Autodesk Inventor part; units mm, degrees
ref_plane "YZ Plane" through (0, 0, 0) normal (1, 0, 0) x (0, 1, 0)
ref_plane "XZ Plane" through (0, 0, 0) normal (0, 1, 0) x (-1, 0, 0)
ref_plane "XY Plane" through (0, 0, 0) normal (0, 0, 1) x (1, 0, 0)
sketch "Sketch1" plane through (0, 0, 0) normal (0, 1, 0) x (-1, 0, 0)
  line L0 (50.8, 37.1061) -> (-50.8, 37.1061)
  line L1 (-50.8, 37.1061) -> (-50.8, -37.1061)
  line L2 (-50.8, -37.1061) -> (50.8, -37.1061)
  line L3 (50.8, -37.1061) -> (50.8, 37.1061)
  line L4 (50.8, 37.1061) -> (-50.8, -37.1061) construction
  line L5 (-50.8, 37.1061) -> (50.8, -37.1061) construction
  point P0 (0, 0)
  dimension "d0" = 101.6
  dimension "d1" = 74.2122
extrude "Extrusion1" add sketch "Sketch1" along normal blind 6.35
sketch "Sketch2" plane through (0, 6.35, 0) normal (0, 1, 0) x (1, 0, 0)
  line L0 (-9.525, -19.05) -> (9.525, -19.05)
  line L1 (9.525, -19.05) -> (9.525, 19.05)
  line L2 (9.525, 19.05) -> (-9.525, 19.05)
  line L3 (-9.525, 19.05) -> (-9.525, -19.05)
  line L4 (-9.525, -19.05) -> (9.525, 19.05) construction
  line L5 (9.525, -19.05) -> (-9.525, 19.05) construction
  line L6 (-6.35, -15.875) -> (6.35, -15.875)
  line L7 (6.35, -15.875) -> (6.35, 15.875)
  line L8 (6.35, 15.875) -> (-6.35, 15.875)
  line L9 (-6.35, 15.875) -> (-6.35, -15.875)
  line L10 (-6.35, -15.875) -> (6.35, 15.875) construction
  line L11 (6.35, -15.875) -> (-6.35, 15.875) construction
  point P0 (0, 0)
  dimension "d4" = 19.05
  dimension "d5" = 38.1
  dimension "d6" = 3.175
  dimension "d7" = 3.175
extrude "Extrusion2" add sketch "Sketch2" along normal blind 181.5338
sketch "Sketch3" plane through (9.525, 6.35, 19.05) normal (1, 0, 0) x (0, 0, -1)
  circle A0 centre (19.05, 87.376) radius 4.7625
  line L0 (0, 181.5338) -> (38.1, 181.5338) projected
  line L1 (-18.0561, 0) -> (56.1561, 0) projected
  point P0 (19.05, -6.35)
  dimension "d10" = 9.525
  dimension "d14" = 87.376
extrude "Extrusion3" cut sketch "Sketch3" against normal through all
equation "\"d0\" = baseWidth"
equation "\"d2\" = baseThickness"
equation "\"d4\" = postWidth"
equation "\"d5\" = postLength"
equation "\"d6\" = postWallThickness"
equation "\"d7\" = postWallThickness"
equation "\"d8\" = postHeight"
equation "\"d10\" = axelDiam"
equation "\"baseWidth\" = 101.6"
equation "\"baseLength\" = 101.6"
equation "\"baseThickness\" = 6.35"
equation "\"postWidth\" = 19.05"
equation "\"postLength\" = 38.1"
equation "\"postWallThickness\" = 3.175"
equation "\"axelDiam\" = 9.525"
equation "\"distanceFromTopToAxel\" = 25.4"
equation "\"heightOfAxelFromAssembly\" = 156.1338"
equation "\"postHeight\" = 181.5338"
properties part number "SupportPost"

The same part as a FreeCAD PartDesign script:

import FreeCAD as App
import Part
import Sketcher

V = App.Vector
Q = App.Units.Quantity

doc = App.newDocument("Part")
body = doc.addObject("PartDesign::Body", "Body")

# Sketch on XZ plane
sketch1 = doc.addObject("Sketcher::SketchObject", "Sketch")
body.addObject(sketch1)
sketch1.AttachmentSupport = (doc.XZ_Plane, [""])
sketch1.MapMode = "FlatFace"
sketch1.addGeometry(Part.LineSegment(V(-51, -37, 0), V(-51, 37, 0)), False)
sketch1.addGeometry(Part.LineSegment(V(-51, 37, 0), V(51, 37, 0)), False)
sketch1.addGeometry(Part.LineSegment(V(51, 37, 0), V(51, -37, 0)), False)
sketch1.addGeometry(Part.LineSegment(V(51, -37, 0), V(-51, -37, 0)), False)
sketch1.addConstraint(Sketcher.Constraint("Coincident", 0, 2, 1, 1))
sketch1.addConstraint(Sketcher.Constraint("Coincident", 1, 2, 2, 1))
sketch1.addConstraint(Sketcher.Constraint("Coincident", 2, 2, 3, 1))
sketch1.addConstraint(Sketcher.Constraint("Coincident", 3, 2, 0, 1))
sketch1.addConstraint(Sketcher.Constraint("Vertical", 0))
sketch1.addConstraint(Sketcher.Constraint("Horizontal", 1))
sketch1.addConstraint(Sketcher.Constraint("Vertical", 2))
sketch1.addConstraint(Sketcher.Constraint("Horizontal", 3))
sketch1.addConstraint(Sketcher.Constraint("Symmetric", 0, 2, 2, 2, -1, 1))
sketch1.addConstraint(Sketcher.Constraint("DistanceX", 1, 1, 1, 2, Q("4 in")))
sketch1.addConstraint(Sketcher.Constraint("DistanceY", 0, 1, 0, 2, Q("74.2122 mm")))
pad1 = doc.addObject("PartDesign::Pad", "Pad")
body.addObject(pad1)
pad1.Profile = sketch1
pad1.Length = Q("0.25 in")
pad1.Reversed = True

# Sketch on XZ plane
sketch2 = doc.addObject("Sketcher::SketchObject", "Sketch001")
body.addObject(sketch2)
sketch2.AttachmentSupport = (doc.XZ_Plane, [""])
sketch2.MapMode = "FlatFace"
sketch2.AttachmentOffset = App.Placement(V(0, 0, -0.25 * 25.4), App.Rotation())
sketch2.addGeometry(Part.LineSegment(V(-10, -19, 0), V(-10, 19, 0)), False)
sketch2.addGeometry(Part.LineSegment(V(-10, 19, 0), V(10, 19, 0)), False)
sketch2.addGeometry(Part.LineSegment(V(10, 19, 0), V(10, -19, 0)), False)
sketch2.addGeometry(Part.LineSegment(V(10, -19, 0), V(-10, -19, 0)), False)
sketch2.addGeometry(Part.LineSegment(V(6, 16, 0), V(-6, 16, 0)), False)
sketch2.addGeometry(Part.LineSegment(V(-6, 16, 0), V(-6, -16, 0)), False)
sketch2.addGeometry(Part.LineSegment(V(-6, -16, 0), V(6, -16, 0)), False)
sketch2.addGeometry(Part.LineSegment(V(6, -16, 0), V(6, 16, 0)), False)
sketch2.addConstraint(Sketcher.Constraint("Coincident", 0, 2, 1, 1))
sketch2.addConstraint(Sketcher.Constraint("Coincident", 1, 2, 2, 1))
sketch2.addConstraint(Sketcher.Constraint("Coincident", 2, 2, 3, 1))
sketch2.addConstraint(Sketcher.Constraint("Coincident", 3, 2, 0, 1))
sketch2.addConstraint(Sketcher.Constraint("Coincident", 4, 2, 5, 1))
sketch2.addConstraint(Sketcher.Constraint("Coincident", 5, 2, 6, 1))
sketch2.addConstraint(Sketcher.Constraint("Coincident", 6, 2, 7, 1))
sketch2.addConstraint(Sketcher.Constraint("Coincident", 7, 2, 4, 1))
sketch2.addConstraint(Sketcher.Constraint("Vertical", 0))
sketch2.addConstraint(Sketcher.Constraint("Horizontal", 1))
sketch2.addConstraint(Sketcher.Constraint("Vertical", 2))
sketch2.addConstraint(Sketcher.Constraint("Horizontal", 3))
sketch2.addConstraint(Sketcher.Constraint("Horizontal", 4))
sketch2.addConstraint(Sketcher.Constraint("Vertical", 5))
sketch2.addConstraint(Sketcher.Constraint("Horizontal", 6))
sketch2.addConstraint(Sketcher.Constraint("Vertical", 7))
sketch2.addConstraint(Sketcher.Constraint("Symmetric", 0, 2, 2, 2, -1, 1))
sketch2.addConstraint(Sketcher.Constraint("Symmetric", 4, 2, 6, 2, -1, 1))
sketch2.addConstraint(Sketcher.Constraint("DistanceY", 0, 1, 0, 2, Q("1.5 in")))
sketch2.addConstraint(Sketcher.Constraint("DistanceX", 1, 1, 1, 2, Q("0.75 in")))
sketch2.addConstraint(Sketcher.Constraint("DistanceX", 4, 2, 4, 1, Q("0.5 in")))
sketch2.addConstraint(Sketcher.Constraint("DistanceY", 4, 2, 0, 2, Q("0.125 in")))
pad2 = doc.addObject("PartDesign::Pad", "Pad001")
body.addObject(pad2)
pad2.Profile = sketch2
pad2.Length = Q("7.147 in")
pad2.Reversed = True

# Sketch on YZ plane
sketch3 = doc.addObject("Sketcher::SketchObject", "Sketch002")
body.addObject(sketch3)
sketch3.AttachmentSupport = (doc.YZ_Plane, [""])
sketch3.MapMode = "FlatFace"
sketch3.AttachmentOffset = App.Placement(V(0, 0, 0.375 * 25.4), App.Rotation())
sketch3.addGeometry(Part.Circle(V(93.7, 0, 0), V(0, 0, 1), 4.8), False)
sketch3.addConstraint(Sketcher.Constraint("PointOnObject", 0, 3, -1))
sketch3.addConstraint(Sketcher.Constraint("Diameter", 0, Q("0.375 in")))
sketch3.addConstraint(Sketcher.Constraint("DistanceX", -1, 1, 0, 3, Q("3.69 in")))
pocket1 = doc.addObject("PartDesign::Pocket", "Pocket")
body.addObject(pocket1)
pocket1.Profile = sketch3
pocket1.Type = "ThroughAll"

doc.recompute()
